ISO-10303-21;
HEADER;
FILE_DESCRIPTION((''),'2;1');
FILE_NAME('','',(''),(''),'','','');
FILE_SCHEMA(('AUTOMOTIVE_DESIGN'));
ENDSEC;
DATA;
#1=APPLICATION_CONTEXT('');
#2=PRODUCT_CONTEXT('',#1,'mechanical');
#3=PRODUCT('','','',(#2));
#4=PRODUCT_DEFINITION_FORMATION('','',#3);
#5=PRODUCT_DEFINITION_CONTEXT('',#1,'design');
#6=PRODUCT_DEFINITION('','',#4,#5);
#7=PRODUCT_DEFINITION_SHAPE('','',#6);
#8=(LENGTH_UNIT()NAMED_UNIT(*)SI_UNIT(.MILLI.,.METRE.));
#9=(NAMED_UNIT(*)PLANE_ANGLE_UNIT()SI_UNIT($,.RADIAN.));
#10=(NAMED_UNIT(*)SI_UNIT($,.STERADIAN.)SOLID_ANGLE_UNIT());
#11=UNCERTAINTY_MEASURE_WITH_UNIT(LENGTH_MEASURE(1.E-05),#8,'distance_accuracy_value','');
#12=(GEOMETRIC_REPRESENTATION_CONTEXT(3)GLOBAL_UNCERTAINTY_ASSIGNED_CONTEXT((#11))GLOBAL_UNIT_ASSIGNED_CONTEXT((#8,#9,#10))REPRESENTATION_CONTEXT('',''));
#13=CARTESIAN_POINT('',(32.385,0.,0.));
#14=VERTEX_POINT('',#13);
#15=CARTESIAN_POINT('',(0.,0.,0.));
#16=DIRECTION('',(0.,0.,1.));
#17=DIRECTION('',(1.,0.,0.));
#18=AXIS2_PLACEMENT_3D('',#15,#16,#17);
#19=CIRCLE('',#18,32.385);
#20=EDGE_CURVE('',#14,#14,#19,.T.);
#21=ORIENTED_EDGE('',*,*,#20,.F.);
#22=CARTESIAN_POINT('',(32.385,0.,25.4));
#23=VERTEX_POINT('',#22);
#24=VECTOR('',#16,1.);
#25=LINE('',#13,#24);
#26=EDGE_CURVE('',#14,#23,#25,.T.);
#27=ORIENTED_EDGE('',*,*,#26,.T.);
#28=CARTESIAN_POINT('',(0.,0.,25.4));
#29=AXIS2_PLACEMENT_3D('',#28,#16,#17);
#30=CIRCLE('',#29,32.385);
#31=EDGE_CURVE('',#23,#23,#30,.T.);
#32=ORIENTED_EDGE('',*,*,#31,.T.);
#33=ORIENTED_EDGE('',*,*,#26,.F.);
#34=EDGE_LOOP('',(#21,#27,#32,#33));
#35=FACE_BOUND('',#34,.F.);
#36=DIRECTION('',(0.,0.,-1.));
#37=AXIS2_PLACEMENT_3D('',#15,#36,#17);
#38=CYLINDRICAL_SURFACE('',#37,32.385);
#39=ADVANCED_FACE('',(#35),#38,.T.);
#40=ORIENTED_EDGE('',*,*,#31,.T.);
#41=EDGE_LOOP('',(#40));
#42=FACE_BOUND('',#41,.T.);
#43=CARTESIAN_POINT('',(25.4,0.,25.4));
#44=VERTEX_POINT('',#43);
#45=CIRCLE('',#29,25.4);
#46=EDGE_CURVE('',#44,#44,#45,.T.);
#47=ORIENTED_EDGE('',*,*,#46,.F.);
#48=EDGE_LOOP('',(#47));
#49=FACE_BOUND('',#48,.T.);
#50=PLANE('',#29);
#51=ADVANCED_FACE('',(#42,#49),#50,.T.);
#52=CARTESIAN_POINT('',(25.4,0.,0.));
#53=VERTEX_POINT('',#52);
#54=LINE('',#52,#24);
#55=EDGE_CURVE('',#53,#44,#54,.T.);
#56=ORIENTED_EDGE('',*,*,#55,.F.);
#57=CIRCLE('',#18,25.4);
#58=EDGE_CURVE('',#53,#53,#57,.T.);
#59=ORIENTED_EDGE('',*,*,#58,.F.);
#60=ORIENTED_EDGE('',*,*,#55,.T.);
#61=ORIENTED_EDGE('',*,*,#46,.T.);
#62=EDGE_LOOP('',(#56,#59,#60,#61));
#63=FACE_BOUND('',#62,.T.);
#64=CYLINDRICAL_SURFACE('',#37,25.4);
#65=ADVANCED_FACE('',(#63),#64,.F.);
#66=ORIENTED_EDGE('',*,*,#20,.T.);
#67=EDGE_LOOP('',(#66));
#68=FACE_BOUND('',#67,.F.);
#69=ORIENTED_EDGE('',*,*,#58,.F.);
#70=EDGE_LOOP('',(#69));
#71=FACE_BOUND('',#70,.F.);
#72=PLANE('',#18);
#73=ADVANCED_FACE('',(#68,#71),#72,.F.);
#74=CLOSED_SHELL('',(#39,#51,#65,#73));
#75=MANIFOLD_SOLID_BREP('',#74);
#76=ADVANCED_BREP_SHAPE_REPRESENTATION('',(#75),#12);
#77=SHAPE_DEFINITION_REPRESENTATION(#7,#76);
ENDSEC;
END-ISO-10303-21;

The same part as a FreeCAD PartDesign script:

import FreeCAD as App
import Part
import Sketcher
from FreeCAD import Vector
Q = App.Units.Quantity

doc = App.newDocument("Part")
body = doc.addObject("PartDesign::Body", "Body")

# Sketch on XY plane
sketch1 = body.newObject("Sketcher::SketchObject", "Sketch")
sketch1.AttachmentSupport = (doc.getObject("XY_Plane"), [""])
sketch1.MapMode = "FlatFace"
sketch1.addGeometry([
    Part.Circle(Vector(0, 0, 0), Vector(0, 0, 1), 32),
    Part.Circle(Vector(0, 0, 0), Vector(0, 0, 1), 25),
], False)
sketch1.addConstraint([
    Sketcher.Constraint("Coincident", 0, 3, -1, 1),
    Sketcher.Constraint("Coincident", 1, 3, -1, 1),
    Sketcher.Constraint("Diameter", 1, Q("2 in")),
    Sketcher.Constraint("Diameter", 0, Q("2.55 in")),
])
pad1 = body.newObject("PartDesign::Pad", "Pad")
pad1.Profile = sketch1
pad1.Length = Q("1 in")

doc.recompute()
